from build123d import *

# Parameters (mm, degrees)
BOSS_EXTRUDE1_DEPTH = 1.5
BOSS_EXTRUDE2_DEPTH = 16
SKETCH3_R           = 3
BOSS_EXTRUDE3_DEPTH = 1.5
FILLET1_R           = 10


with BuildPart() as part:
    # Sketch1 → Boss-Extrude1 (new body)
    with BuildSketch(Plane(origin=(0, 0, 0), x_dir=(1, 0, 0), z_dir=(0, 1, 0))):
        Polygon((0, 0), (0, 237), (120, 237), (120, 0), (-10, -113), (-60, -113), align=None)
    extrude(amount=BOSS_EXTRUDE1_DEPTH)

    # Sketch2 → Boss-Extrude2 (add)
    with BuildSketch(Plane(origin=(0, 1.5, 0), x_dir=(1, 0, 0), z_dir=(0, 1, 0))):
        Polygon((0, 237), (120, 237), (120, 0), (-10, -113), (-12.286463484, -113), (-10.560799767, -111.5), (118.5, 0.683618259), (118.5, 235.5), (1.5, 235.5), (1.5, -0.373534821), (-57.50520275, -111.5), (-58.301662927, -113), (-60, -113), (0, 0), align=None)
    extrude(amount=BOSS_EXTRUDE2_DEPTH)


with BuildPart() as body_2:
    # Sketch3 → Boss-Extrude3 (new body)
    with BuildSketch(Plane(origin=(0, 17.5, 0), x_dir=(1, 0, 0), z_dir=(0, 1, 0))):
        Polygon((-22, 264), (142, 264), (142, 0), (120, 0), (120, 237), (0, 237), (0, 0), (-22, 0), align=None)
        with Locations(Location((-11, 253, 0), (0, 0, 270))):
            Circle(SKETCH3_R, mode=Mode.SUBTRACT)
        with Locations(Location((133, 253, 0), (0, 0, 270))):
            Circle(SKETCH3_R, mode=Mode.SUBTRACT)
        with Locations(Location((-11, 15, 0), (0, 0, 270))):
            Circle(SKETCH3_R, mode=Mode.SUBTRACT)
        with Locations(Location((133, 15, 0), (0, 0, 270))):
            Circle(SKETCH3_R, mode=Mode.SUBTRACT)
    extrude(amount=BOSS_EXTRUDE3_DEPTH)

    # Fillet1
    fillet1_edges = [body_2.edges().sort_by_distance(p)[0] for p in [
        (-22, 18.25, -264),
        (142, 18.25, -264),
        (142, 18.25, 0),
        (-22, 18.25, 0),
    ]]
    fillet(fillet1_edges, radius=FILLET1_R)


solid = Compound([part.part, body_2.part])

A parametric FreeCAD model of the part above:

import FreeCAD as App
import Part
import Sketcher

V = App.Vector
Q = App.Units.Quantity


def edges_at(feature, points):
    """Names of the edges that pass closest to the given points."""
    edges = feature.Shape.Edges
    near = lambda p: min(range(len(edges)), key=lambda i: edges[i].distToShape(Part.Vertex(*p))[0])
    return sorted({f"Edge{near(p) + 1}" for p in points})


def add_polygon(sketch, points):
    """Adds a closed chain of lines whose ends are joined by coincident constraints."""
    first, n = sketch.GeometryCount, len(points)
    for a, b in zip(points, points[1:] + points[:1]):
        sketch.addGeometry(Part.LineSegment(App.Vector(*a, 0), App.Vector(*b, 0)), False)
    for i in range(n):
        sketch.addConstraint(Sketcher.Constraint("Coincident", first + i, 2, first + (i + 1) % n, 1))

doc = App.newDocument("Part")
params = doc.addObject("Spreadsheet::Sheet", "Params")
for row, (alias, value) in enumerate([
    ("sketch1_width", "50 mm"),
    ("sketch1_width2", "120 mm"),
    ("sketch1_height", "237 mm"),
    ("pad1_length", "1.5 mm"),
    ("sketch2_width", "120 mm"),
    ("sketch2_width2", "117 mm"),
    ("sketch2_height", "237 mm"),
    ("pad2_length", "16 mm"),
    ("sketch3_diameter", "6 mm"),
    ("sketch3_width", "164 mm"),
    ("sketch3_width2", "22 mm"),
    ("sketch3_height", "264 mm"),
    ("sketch3_height2", "237 mm"),
    ("pad3_length", "1.5 mm"),
    ("fillet_radius", "10 mm"),
], start=1):
    params.set(f"A{row}", alias)
    params.set(f"B{row}", "=" + value)
    params.setAlias(f"B{row}", alias)

body = doc.addObject("PartDesign::Body", "Body")

sketch1 = body.newObject("Sketcher::SketchObject", "Sketch")
sketch1.AttachmentSupport = (doc.getObject("XZ_Plane"), [""])
sketch1.MapMode = "FlatFace"
add_polygon(sketch1, [(0, -237), (0, 0), (-60, 113), (-10, 113), (120, 0), (120, -237)])
sketch1.addConstraint(Sketcher.Constraint("Vertical", 0))
sketch1.addConstraint(Sketcher.Constraint("Horizontal", 2))
sketch1.addConstraint(Sketcher.Constraint("Vertical", 4))
sketch1.addConstraint(Sketcher.Constraint("Horizontal", 5))
sketch1.addConstraint(Sketcher.Constraint("Coincident", 0, 2, -1, 1))
sketch1.addConstraint(Sketcher.Constraint("PointOnObject", 3, 2, -1))
sketch1.addConstraint(Sketcher.Constraint("DistanceX", 2, 1, 2, 2, Q("50 mm")))
sketch1.addConstraint(Sketcher.Constraint("DistanceX", 5, 2, 5, 1, Q("120 mm")))
sketch1.addConstraint(Sketcher.Constraint("DistanceY", 0, 1, 0, 2, Q("237 mm")))
sketch1.addConstraint(Sketcher.Constraint("DistanceX", 1, 2, -1, 1, Q("60 mm")))
sketch1.addConstraint(Sketcher.Constraint("DistanceY", -1, 1, 1, 2, Q("113 mm")))
sketch1.setExpression("Constraints[12]", "Params.sketch1_width")
sketch1.setExpression("Constraints[13]", "Params.sketch1_width2")
sketch1.setExpression("Constraints[14]", "Params.sketch1_height")
pad1 = body.newObject("PartDesign::Pad", "Pad")
pad1.Profile = sketch1
pad1.setExpression("Length", "Params.pad1_length")
pad1.Reversed = True

sketch2 = body.newObject("Sketcher::SketchObject", "Sketch001")
sketch2.AttachmentSupport = (doc.getObject("XZ_Plane"), [""])
sketch2.MapMode = "FlatFace"
sketch2.AttachmentOffset = App.Placement(V(0, 0, -1.5), App.Rotation())
add_polygon(sketch2, [(120, -237), (0, -237), (0, 0), (-60, 113), (-58.3, 113), (-57.5, 111.5), (1.5, 0.4), (1.5, -235.5), (118.5, -235.5), (118.5, -0.7), (-10.6, 111.5), (-12.3, 113), (-10, 113), (120, 0)])
sketch2.addConstraint(Sketcher.Constraint("Horizontal", 0))
sketch2.addConstraint(Sketcher.Constraint("Vertical", 1))
sketch2.addConstraint(Sketcher.Constraint("Horizontal", 3))
sketch2.addConstraint(Sketcher.Constraint("Vertical", 6))
sketch2.addConstraint(Sketcher.Constraint("Horizontal", 7))
sketch2.addConstraint(Sketcher.Constraint("Vertical", 8))
sketch2.addConstraint(Sketcher.Constraint("Horizontal", 11))
sketch2.addConstraint(Sketcher.Constraint("Vertical", 13))
sketch2.addConstraint(Sketcher.Constraint("Coincident", 1, 2, -1, 1))
sketch2.addConstraint(Sketcher.Constraint("PointOnObject", 12, 2, -1))
sketch2.addConstraint(Sketcher.Constraint("Parallel", 2, 4))
sketch2.addConstraint(Sketcher.Constraint("Parallel", 4, 5))
sketch2.addConstraint(Sketcher.Constraint("Parallel", 9, 10))
sketch2.addConstraint(Sketcher.Constraint("Parallel", 10, 12))
sketch2.addConstraint(Sketcher.Constraint("Horizontal", 4, 2, 9, 2))
sketch2.addConstraint(Sketcher.Constraint("Horizontal", 3, 2, 10, 2))
sketch2.addConstraint(Sketcher.Constraint("DistanceX", 0, 2, 0, 1, Q("120 mm")))
sketch2.addConstraint(Sketcher.Constraint("DistanceX", 7, 1, 7, 2, Q("117 mm")))
sketch2.addConstraint(Sketcher.Constraint("DistanceY", 1, 1, 1, 2, Q("237 mm")))
sketch2.addConstraint(Sketcher.Constraint("DistanceX", 2, 2, -1, 1, Q("60 mm")))
sketch2.addConstraint(Sketcher.Constraint("DistanceY", -1, 1, 2, 2, Q("113 mm")))
sketch2.addConstraint(Sketcher.Constraint("DistanceX", 11, 2, -1, 1, Q("10 mm")))
sketch2.addConstraint(Sketcher.Constraint("DistanceY", 6, 2, 4, 2, Q("347 mm")))
sketch2.addConstraint(Sketcher.Constraint("DistanceY", -1, 1, 4, 2, Q("111.5 mm")))
sketch2.addConstraint(Sketcher.Constraint("DistanceX", -1, 1, 5, 2, Q("1.5 mm")))
sketch2.addConstraint(Sketcher.Constraint("DistanceY", 8, 1, 8, 2, Q("234.816382 mm")))
sketch2.addConstraint(Sketcher.Constraint("DistanceX", 3, 2, 10, 2, Q("46.015199 mm")))
sketch2.setExpression("Constraints[30]", "Params.sketch2_width")
sketch2.setExpression("Constraints[31]", "Params.sketch2_width2")
sketch2.setExpression("Constraints[32]", "Params.sketch2_height")
pad2 = body.newObject("PartDesign::Pad", "Pad001")
pad2.Profile = sketch2
pad2.setExpression("Length", "Params.pad2_length")
pad2.Reversed = True
body2 = doc.addObject("PartDesign::Body", "Body001")

sketch3 = body2.newObject("Sketcher::SketchObject", "Sketch002")
sketch3.AttachmentSupport = (doc.getObject("XZ_Plane001"), [""])
sketch3.MapMode = "FlatFace"
sketch3.AttachmentOffset = App.Placement(V(0, 0, -17.5), App.Rotation())
add_polygon(sketch3, [(142, -264), (-22, -264), (-22, 0), (0, 0), (0, -237), (120, -237), (120, 0), (142, 0)])
sketch3.addGeometry(Part.Circle(V(133, -15, 0), V(0, 0, 1), 3), False)
sketch3.addGeometry(Part.Circle(V(-11, -15, 0), V(0, 0, 1), 3), False)
sketch3.addGeometry(Part.Circle(V(133, -253, 0), V(0, 0, 1), 3), False)
sketch3.addGeometry(Part.Circle(V(-11, -253, 0), V(0, 0, 1), 3), False)
sketch3.addConstraint(Sketcher.Constraint("Horizontal", 0))
sketch3.addConstraint(Sketcher.Constraint("Vertical", 1))
sketch3.addConstraint(Sketcher.Constraint("Horizontal", 2))
sketch3.addConstraint(Sketcher.Constraint("Vertical", 3))
sketch3.addConstraint(Sketcher.Constraint("Horizontal", 4))
sketch3.addConstraint(Sketcher.Constraint("Vertical", 5))
sketch3.addConstraint(Sketcher.Constraint("Horizontal", 6))
sketch3.addConstraint(Sketcher.Constraint("Vertical", 7))
sketch3.addConstraint(Sketcher.Constraint("Coincident", 2, 2, -1, 1))
sketch3.addConstraint(Sketcher.Constraint("Equal", 8, 9))
sketch3.addConstraint(Sketcher.Constraint("Equal", 9, 10))
sketch3.addConstraint(Sketcher.Constraint("Equal", 10, 11))
sketch3.addConstraint(Sketcher.Constraint("PointOnObject", 5, 2, -1))
sketch3.addConstraint(Sketcher.Constraint("Horizontal", 8, 3, 9, 3))
sketch3.addConstraint(Sketcher.Constraint("Horizontal", 10, 3, 11, 3))
sketch3.addConstraint(Sketcher.Constraint("Vertical", 8, 3, 10, 3))
sketch3.addConstraint(Sketcher.Constraint("Vertical", 9, 3, 11, 3))
sketch3.addConstraint(Sketcher.Constraint("Equal", 2, 6))
sketch3.addConstraint(Sketcher.Constraint("Diameter", 8, Q("6 mm")))
sketch3.addConstraint(Sketcher.Constraint("DistanceX", 0, 2, 0, 1, Q("164 mm")))
sketch3.addConstraint(Sketcher.Constraint("DistanceX", 2, 1, 2, 2, Q("22 mm")))
sketch3.addConstraint(Sketcher.Constraint("DistanceY", 1, 1, 1, 2, Q("264 mm")))
sketch3.addConstraint(Sketcher.Constraint("DistanceY", 3, 2, 3, 1, Q("237 mm")))
sketch3.addConstraint(Sketcher.Constraint("DistanceX", -1, 1, 8, 3, Q("133 mm")))
sketch3.addConstraint(Sketcher.Constraint("DistanceY", 8, 3, -1, 1, Q("15 mm")))
sketch3.addConstraint(Sketcher.Constraint("DistanceX", 9, 3, -1, 1, Q("11 mm")))
sketch3.addConstraint(Sketcher.Constraint("DistanceY", 10, 3, -1, 1, Q("253 mm")))
sketch3.setExpression("Constraints[26]", "Params.sketch3_diameter")
sketch3.setExpression("Constraints[27]", "Params.sketch3_width")
sketch3.setExpression("Constraints[28]", "Params.sketch3_width2")
sketch3.setExpression("Constraints[29]", "Params.sketch3_height")
sketch3.setExpression("Constraints[30]", "Params.sketch3_height2")
pad3 = body2.newObject("PartDesign::Pad", "Pad002")
pad3.Profile = sketch3
pad3.setExpression("Length", "Params.pad3_length")
pad3.Reversed = True
doc.recompute()

fillet = body2.newObject("PartDesign::Fillet", "Fillet")
fillet.Base = (pad3, edges_at(pad3, [
    (-22, 18.25, -264),
    (142, 18.25, -264),
    (142, 18.25, 0),
    (-22, 18.25, 0),
]))
fillet.setExpression("Radius", "Params.fillet_radius")

doc.recompute()
